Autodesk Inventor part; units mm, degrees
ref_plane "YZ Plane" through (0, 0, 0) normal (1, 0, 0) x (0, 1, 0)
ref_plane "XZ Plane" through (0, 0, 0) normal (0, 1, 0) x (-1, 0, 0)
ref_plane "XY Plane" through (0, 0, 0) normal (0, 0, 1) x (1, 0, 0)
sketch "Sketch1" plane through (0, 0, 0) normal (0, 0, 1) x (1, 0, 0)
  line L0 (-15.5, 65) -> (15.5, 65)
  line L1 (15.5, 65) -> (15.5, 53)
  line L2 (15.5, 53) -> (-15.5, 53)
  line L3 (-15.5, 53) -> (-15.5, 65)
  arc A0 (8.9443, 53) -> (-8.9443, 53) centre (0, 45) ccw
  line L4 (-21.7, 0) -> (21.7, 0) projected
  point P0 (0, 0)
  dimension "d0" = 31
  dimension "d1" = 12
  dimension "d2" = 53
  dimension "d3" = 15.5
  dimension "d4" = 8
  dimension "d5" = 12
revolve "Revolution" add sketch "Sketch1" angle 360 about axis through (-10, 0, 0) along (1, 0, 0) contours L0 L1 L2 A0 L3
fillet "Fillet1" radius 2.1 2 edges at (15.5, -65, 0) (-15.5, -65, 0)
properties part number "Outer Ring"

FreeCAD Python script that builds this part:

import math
import FreeCAD as App
import Part
import Sketcher

V = App.Vector
Q = App.Units.Quantity


def edges_at(feature, points):
    """Names of the edges that pass closest to the given points."""
    edges = feature.Shape.Edges
    near = lambda p: min(range(len(edges)), key=lambda i: edges[i].distToShape(Part.Vertex(*p))[0])
    return sorted({f"Edge{near(p) + 1}" for p in points})

doc = App.newDocument("Part")
params = doc.addObject("Spreadsheet::Sheet", "Params")
for row, (alias, value) in enumerate([
    ("sketch1_radius", "12 mm"),
    ("sketch1_width", "31 mm"),
    ("sketch1_height", "12 mm"),
    ("revolution_angle", "360 deg"),
    ("fillet_radius", "2.1 mm"),
], start=1):
    params.set(f"A{row}", alias)
    params.set(f"B{row}", "=" + value)
    params.setAlias(f"B{row}", alias)

body = doc.addObject("PartDesign::Body", "Body")

# Sketch on XY plane
sketch1 = body.newObject("Sketcher::SketchObject", "Sketch")
sketch1.AttachmentSupport = (doc.getObject("XY_Plane"), [""])
sketch1.MapMode = "FlatFace"
sketch1.addGeometry(Part.LineSegment(V(15.5, 65, 0), V(-15.5, 65, 0)), False)
sketch1.addGeometry(Part.LineSegment(V(-15.5, 65, 0), V(-15.5, 53, 0)), False)
sketch1.addGeometry(Part.LineSegment(V(-15.5, 53, 0), V(-8.9443, 53, 0)), False)
sketch1.addGeometry(Part.ArcOfCircle(Part.Circle(V(0, 45, 0), V(0, 0, 1), 12.000021), math.radians(41.810225), math.radians(138.189775)), False)
sketch1.addGeometry(Part.LineSegment(V(8.9443, 53, 0), V(15.5, 53, 0)), False)
sketch1.addGeometry(Part.LineSegment(V(15.5, 53, 0), V(15.5, 65, 0)), False)
sketch1.addConstraint(Sketcher.Constraint("Coincident", 0, 2, 1, 1))
sketch1.addConstraint(Sketcher.Constraint("Coincident", 1, 2, 2, 1))
sketch1.addConstraint(Sketcher.Constraint("Coincident", 2, 2, 3, 2))
sketch1.addConstraint(Sketcher.Constraint("Coincident", 3, 1, 4, 1))
sketch1.addConstraint(Sketcher.Constraint("Coincident", 4, 2, 5, 1))
sketch1.addConstraint(Sketcher.Constraint("Coincident", 5, 2, 0, 1))
sketch1.addConstraint(Sketcher.Constraint("Horizontal", 0))
sketch1.addConstraint(Sketcher.Constraint("Vertical", 1))
sketch1.addConstraint(Sketcher.Constraint("Horizontal", 2))
sketch1.addConstraint(Sketcher.Constraint("Horizontal", 4))
sketch1.addConstraint(Sketcher.Constraint("Vertical", 5))
sketch1.addConstraint(Sketcher.Constraint("Symmetric", 2, 2, 3, 1, -2))
sketch1.addConstraint(Sketcher.Constraint("Equal", 2, 4))
sketch1.addConstraint(Sketcher.Constraint("Radius", 3, Q("12 mm")))
sketch1.addConstraint(Sketcher.Constraint("DistanceX", 0, 2, 0, 1, Q("31 mm")))
sketch1.addConstraint(Sketcher.Constraint("DistanceY", 1, 2, 1, 1, Q("12 mm")))
sketch1.addConstraint(Sketcher.Constraint("DistanceY", -1, 1, 1, 2, Q("53 mm")))
sketch1.addConstraint(Sketcher.Constraint("DistanceY", 3, 3, 1, 2, Q("8 mm")))
sketch1.setExpression("Constraints[13]", "Params.sketch1_radius")
sketch1.setExpression("Constraints[14]", "Params.sketch1_width")
sketch1.setExpression("Constraints[15]", "Params.sketch1_height")
revolution = body.newObject("PartDesign::Revolution", "Revolution")
revolution.Profile = sketch1
revolution.ReferenceAxis = (sketch1, ["H_Axis"])
revolution.setExpression("Angle", "Params.revolution_angle")
doc.recompute()

fillet = body.newObject("PartDesign::Fillet", "Fillet")
fillet.Base = (revolution, edges_at(revolution, [(15.5, -65, 0), (-15.5, -65, 0)]))
fillet.setExpression("Radius", "Params.fillet_radius")

doc.recompute()
